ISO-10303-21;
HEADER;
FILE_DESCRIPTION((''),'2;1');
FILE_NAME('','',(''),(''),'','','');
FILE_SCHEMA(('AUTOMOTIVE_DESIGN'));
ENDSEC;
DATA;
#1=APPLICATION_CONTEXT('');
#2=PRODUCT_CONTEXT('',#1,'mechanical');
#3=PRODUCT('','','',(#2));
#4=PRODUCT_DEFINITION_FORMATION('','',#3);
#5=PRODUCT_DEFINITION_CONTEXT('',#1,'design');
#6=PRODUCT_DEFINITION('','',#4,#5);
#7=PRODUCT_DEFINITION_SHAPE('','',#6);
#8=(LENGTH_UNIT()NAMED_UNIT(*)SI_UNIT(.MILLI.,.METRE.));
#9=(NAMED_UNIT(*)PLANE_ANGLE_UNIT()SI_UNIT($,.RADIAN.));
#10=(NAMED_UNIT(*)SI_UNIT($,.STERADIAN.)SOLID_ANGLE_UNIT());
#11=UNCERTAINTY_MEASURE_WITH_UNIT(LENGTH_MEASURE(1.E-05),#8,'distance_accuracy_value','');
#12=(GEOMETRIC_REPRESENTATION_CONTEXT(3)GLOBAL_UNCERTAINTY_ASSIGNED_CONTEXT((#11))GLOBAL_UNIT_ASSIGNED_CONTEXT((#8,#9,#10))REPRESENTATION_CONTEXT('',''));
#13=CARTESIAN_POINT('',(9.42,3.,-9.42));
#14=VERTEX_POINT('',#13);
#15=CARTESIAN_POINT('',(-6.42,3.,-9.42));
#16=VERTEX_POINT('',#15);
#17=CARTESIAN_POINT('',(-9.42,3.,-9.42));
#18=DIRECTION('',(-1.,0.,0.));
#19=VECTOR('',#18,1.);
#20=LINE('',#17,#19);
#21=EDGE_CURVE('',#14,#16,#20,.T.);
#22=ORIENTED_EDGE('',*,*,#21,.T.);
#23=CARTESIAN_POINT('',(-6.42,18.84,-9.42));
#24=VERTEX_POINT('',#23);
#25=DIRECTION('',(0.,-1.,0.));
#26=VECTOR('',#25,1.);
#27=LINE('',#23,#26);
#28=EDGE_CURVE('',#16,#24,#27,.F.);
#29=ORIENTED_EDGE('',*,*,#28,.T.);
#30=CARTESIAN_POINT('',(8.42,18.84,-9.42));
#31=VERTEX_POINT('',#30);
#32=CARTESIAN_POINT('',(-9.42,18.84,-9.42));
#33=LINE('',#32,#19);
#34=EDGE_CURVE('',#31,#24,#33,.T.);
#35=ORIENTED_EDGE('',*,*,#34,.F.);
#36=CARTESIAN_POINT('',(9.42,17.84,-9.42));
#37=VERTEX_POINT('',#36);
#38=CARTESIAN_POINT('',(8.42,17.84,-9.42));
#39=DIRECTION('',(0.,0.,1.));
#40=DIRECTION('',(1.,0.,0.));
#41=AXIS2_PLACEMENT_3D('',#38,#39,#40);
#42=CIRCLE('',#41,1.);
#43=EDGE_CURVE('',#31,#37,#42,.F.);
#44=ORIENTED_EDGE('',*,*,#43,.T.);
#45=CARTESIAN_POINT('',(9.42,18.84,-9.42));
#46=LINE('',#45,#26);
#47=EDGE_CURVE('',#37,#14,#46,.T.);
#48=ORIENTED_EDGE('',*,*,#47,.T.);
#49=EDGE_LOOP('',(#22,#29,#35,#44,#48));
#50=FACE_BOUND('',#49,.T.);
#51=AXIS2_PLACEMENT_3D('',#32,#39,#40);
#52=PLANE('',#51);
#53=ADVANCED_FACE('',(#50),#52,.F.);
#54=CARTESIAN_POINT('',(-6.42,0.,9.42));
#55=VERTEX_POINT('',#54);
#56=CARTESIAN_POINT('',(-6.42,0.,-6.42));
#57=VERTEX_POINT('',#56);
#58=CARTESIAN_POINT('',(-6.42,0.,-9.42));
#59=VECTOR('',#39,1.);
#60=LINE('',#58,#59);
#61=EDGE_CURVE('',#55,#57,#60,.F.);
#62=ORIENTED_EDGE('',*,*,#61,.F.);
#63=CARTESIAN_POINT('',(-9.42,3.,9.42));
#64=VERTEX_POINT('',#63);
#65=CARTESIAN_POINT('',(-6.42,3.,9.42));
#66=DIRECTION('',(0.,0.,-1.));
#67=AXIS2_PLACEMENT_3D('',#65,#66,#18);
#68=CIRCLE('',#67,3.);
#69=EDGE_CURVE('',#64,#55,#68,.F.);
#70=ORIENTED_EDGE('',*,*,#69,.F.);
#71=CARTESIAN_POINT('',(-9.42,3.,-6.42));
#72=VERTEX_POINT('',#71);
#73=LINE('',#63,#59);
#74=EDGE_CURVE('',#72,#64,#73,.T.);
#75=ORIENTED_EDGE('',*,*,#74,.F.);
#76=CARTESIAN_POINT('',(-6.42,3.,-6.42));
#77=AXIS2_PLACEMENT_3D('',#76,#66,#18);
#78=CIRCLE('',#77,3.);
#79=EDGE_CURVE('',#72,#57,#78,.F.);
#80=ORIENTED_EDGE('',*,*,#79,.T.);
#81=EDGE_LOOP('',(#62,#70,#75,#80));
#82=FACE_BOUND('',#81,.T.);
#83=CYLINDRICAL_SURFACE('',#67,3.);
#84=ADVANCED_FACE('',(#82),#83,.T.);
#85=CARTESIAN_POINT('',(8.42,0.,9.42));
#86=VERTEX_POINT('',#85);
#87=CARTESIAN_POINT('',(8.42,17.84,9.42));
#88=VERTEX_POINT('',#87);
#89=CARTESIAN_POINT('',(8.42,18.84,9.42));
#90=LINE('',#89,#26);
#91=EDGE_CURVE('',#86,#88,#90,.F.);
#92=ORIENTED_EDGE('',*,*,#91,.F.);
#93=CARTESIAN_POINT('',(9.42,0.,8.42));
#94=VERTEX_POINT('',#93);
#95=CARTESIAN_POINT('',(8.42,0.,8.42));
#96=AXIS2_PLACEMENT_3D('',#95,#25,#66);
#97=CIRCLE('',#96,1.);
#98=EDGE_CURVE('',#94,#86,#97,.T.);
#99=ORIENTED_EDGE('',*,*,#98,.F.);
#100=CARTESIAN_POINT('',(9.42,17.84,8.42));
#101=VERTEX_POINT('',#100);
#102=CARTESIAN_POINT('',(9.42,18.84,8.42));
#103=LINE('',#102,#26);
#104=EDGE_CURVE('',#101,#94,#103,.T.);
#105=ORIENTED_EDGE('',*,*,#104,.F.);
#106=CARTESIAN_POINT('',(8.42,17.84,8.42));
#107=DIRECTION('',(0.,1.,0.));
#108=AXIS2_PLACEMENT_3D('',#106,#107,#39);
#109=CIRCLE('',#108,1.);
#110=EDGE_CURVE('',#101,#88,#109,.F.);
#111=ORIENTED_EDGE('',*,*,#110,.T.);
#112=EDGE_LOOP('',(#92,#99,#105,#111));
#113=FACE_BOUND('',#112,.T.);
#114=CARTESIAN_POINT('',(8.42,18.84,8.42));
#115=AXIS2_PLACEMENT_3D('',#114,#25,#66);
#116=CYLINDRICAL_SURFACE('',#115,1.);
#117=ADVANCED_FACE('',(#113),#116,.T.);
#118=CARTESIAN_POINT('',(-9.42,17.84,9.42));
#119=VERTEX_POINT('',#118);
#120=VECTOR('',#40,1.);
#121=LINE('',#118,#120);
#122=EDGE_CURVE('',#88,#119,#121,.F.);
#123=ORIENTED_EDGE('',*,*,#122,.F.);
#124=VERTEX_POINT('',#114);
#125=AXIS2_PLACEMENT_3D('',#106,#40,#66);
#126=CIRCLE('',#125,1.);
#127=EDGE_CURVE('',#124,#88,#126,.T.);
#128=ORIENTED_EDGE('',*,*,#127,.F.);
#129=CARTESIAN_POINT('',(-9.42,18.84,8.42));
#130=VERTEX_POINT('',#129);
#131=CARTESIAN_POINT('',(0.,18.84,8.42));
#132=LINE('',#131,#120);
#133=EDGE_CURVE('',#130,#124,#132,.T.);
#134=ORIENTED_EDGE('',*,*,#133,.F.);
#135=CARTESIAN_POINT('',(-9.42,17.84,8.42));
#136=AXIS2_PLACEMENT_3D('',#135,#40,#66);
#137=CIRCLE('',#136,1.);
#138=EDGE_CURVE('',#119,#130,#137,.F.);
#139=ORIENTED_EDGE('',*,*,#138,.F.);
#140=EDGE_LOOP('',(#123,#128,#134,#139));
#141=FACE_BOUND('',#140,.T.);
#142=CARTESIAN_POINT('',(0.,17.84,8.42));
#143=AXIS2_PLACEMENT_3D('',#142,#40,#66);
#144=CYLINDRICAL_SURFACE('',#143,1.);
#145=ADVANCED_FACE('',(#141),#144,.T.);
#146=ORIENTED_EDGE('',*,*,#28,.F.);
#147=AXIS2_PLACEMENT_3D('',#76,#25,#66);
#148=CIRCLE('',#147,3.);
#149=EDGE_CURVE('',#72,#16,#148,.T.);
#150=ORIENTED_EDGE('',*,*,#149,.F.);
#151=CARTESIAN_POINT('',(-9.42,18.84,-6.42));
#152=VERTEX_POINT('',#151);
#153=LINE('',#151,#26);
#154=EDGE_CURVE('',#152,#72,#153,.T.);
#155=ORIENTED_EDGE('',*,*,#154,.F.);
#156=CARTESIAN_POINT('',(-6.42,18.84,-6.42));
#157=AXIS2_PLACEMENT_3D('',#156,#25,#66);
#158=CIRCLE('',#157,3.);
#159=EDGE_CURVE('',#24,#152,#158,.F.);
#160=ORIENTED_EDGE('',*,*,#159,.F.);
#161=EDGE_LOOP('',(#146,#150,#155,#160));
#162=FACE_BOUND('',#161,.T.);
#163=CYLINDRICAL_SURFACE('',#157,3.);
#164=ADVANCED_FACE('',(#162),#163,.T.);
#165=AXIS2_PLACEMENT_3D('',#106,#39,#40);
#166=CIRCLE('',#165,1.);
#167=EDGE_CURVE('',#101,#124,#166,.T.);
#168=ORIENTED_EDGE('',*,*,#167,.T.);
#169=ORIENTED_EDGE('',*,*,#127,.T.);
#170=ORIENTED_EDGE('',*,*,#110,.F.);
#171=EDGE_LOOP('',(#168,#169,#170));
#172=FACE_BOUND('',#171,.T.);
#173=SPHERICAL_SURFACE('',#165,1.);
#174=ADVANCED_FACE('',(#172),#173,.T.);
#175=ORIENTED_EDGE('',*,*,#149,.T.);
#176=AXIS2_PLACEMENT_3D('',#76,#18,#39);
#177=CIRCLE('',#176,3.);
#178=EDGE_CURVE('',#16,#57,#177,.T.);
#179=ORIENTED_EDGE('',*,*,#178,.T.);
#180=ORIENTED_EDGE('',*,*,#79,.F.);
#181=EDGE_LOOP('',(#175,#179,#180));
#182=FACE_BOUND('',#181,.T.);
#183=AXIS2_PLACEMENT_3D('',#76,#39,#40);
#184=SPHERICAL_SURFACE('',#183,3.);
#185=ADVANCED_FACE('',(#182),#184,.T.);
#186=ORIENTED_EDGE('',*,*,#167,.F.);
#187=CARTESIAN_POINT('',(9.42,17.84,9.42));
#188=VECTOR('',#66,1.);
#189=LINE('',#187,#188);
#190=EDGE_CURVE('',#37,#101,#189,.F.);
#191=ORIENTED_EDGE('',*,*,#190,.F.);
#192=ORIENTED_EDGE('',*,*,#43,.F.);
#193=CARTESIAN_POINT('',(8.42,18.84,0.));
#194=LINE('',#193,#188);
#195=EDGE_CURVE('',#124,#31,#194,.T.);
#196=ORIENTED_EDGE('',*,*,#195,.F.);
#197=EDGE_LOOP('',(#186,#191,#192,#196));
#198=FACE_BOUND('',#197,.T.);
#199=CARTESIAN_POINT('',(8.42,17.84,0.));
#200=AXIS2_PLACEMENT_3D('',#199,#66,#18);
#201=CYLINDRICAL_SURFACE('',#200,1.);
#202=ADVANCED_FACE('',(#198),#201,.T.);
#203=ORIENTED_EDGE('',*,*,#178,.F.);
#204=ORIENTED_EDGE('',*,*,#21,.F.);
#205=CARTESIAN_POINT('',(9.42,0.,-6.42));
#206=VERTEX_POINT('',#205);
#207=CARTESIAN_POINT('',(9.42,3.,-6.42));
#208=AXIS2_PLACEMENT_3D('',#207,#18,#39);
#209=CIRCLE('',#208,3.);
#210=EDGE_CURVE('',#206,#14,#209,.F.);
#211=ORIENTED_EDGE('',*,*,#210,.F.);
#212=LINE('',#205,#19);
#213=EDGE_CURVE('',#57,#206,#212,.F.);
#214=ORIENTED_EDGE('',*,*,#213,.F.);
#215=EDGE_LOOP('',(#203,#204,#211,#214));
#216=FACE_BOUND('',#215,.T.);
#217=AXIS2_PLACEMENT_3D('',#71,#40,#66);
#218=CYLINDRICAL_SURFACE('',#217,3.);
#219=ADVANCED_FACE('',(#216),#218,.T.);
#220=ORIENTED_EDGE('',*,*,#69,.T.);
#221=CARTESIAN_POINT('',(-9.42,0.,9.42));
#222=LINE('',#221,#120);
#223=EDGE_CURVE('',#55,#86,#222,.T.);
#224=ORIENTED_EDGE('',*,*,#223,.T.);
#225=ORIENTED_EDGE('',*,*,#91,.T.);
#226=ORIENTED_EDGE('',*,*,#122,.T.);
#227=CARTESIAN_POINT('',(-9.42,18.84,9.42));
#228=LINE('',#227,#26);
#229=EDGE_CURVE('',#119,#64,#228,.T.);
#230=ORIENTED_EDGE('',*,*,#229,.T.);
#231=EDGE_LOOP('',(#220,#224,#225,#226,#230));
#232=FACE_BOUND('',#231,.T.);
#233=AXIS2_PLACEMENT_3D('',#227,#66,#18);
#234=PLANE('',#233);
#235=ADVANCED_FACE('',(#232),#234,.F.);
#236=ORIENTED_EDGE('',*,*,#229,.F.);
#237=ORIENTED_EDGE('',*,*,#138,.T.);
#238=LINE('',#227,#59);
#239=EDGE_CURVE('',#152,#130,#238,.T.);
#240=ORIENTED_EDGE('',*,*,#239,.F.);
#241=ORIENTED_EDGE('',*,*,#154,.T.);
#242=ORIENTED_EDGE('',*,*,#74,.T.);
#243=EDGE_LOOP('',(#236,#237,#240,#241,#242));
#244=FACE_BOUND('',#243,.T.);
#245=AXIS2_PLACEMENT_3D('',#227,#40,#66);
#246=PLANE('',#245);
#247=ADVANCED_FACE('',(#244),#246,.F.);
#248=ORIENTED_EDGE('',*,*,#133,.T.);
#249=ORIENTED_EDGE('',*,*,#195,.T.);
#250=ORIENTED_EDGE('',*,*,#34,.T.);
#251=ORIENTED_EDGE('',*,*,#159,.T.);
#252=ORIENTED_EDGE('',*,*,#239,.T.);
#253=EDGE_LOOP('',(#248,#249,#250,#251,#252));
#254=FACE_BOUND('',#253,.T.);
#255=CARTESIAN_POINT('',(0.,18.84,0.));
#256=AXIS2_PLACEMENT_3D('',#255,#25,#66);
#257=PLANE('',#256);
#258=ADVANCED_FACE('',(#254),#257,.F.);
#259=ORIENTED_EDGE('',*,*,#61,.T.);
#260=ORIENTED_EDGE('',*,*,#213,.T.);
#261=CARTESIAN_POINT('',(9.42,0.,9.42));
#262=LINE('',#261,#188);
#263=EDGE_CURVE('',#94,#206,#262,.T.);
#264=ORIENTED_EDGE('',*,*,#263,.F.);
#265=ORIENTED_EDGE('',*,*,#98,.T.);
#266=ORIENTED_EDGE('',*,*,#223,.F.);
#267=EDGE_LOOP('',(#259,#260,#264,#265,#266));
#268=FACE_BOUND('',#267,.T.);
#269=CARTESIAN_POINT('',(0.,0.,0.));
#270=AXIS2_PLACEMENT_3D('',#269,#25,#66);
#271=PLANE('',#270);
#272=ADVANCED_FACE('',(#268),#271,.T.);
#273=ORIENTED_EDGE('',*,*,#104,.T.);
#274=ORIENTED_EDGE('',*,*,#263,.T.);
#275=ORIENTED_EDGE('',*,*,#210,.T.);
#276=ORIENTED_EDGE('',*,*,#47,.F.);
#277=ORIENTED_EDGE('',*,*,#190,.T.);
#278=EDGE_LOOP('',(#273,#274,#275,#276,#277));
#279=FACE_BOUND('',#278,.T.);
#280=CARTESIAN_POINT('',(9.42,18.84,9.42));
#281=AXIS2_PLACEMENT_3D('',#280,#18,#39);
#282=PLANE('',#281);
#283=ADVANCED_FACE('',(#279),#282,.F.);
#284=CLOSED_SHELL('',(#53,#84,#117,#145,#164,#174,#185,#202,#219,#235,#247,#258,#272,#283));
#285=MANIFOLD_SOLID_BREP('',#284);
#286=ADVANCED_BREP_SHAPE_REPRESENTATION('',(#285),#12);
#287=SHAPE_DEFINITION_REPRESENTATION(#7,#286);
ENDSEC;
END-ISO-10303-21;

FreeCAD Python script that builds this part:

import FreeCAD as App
import Part
import Sketcher
from FreeCAD import Vector


def edges_at(feature, points):
    """Names of the edges that pass closest to the given points."""
    edges = feature.Shape.Edges
    near = lambda p: min(range(len(edges)), key=lambda i: edges[i].distToShape(Part.Vertex(*p))[0])
    return sorted({f"Edge{near(p) + 1}" for p in points})

doc = App.newDocument("Part")
body = doc.addObject("PartDesign::Body", "Body")

# Sketch on XZ plane
sketch1 = body.newObject("Sketcher::SketchObject", "Sketch")
sketch1.AttachmentSupport = (doc.getObject("XZ_Plane"), [""])
sketch1.MapMode = "FlatFace"
sketch1.addGeometry(Part.LineSegment(Vector(-9, -9, 0), Vector(-9, 9, 0)), False)
sketch1.addGeometry(Part.LineSegment(Vector(-9, 9, 0), Vector(9, 9, 0)), False)
sketch1.addGeometry(Part.LineSegment(Vector(9, 9, 0), Vector(9, -9, 0)), False)
sketch1.addGeometry(Part.LineSegment(Vector(9, -9, 0), Vector(-9, -9, 0)), False)
sketch1.addConstraint(Sketcher.Constraint("Coincident", 0, 2, 1, 1))
sketch1.addConstraint(Sketcher.Constraint("Coincident", 1, 2, 2, 1))
sketch1.addConstraint(Sketcher.Constraint("Coincident", 2, 2, 3, 1))
sketch1.addConstraint(Sketcher.Constraint("Coincident", 3, 2, 0, 1))
sketch1.addConstraint(Sketcher.Constraint("Vertical", 0))
sketch1.addConstraint(Sketcher.Constraint("Horizontal", 1))
sketch1.addConstraint(Sketcher.Constraint("Vertical", 2))
sketch1.addConstraint(Sketcher.Constraint("Horizontal", 3))
sketch1.addConstraint(Sketcher.Constraint("Symmetric", 0, 2, 2, 2, -1, 1))
sketch1.addConstraint(Sketcher.Constraint("Equal", 3, 0))
sketch1.addConstraint(Sketcher.Constraint("DistanceX", 1, 1, 1, 2, 18.84))
pad1 = body.newObject("PartDesign::Pad", "Pad")
pad1.Profile = sketch1
pad1.Length = 18.84
pad1.Reversed = True
doc.recompute()

fillet = body.newObject("PartDesign::Fillet", "Fillet")
fillet.Base = (pad1, edges_at(pad1, [(0, 18.84, 9.42), (9.42, 18.84, 0), (9.42, 9.42, 9.42)]))
fillet.Radius = 1
doc.recompute()

fillet2 = body.newObject("PartDesign::Fillet", "Fillet001")
fillet2.Base = (fillet, edges_at(fillet, [(-9.42, 0, 0), (0, 0, -9.42), (-9.42, 9.42, -9.42)]))
fillet2.Radius = 3

doc.recompute()
